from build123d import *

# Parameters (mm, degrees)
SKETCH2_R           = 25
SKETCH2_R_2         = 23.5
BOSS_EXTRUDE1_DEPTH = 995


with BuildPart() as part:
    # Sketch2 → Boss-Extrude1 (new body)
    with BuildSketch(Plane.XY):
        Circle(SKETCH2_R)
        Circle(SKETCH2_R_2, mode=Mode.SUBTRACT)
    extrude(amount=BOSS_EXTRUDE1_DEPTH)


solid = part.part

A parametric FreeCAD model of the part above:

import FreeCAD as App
import Part
import Sketcher

V = App.Vector
Q = App.Units.Quantity

doc = App.newDocument("Part")
body = doc.addObject("PartDesign::Body", "Body")

sketch1 = doc.addObject("Sketcher::SketchObject", "Sketch")
body.addObject(sketch1)
sketch1.AttachmentSupport = (doc.XY_Plane, [""])
sketch1.MapMode = "FlatFace"
sketch1.addGeometry(Part.Circle(V(0, 0, 0), V(0, 0, 1), 25), False)
sketch1.addGeometry(Part.Circle(V(0, 0, 0), V(0, 0, 1), 23.5), False)
sketch1.addConstraint(Sketcher.Constraint("Coincident", 0, 3, -1, 1))
sketch1.addConstraint(Sketcher.Constraint("Coincident", 1, 3, -1, 1))
sketch1.addConstraint(Sketcher.Constraint("Diameter", 0, Q("50 mm")))
sketch1.addConstraint(Sketcher.Constraint("Diameter", 1, Q("47 mm")))
pad1 = doc.addObject("PartDesign::Pad", "Pad")
body.addObject(pad1)
pad1.Profile = sketch1
pad1.Length = 995

doc.recompute()
